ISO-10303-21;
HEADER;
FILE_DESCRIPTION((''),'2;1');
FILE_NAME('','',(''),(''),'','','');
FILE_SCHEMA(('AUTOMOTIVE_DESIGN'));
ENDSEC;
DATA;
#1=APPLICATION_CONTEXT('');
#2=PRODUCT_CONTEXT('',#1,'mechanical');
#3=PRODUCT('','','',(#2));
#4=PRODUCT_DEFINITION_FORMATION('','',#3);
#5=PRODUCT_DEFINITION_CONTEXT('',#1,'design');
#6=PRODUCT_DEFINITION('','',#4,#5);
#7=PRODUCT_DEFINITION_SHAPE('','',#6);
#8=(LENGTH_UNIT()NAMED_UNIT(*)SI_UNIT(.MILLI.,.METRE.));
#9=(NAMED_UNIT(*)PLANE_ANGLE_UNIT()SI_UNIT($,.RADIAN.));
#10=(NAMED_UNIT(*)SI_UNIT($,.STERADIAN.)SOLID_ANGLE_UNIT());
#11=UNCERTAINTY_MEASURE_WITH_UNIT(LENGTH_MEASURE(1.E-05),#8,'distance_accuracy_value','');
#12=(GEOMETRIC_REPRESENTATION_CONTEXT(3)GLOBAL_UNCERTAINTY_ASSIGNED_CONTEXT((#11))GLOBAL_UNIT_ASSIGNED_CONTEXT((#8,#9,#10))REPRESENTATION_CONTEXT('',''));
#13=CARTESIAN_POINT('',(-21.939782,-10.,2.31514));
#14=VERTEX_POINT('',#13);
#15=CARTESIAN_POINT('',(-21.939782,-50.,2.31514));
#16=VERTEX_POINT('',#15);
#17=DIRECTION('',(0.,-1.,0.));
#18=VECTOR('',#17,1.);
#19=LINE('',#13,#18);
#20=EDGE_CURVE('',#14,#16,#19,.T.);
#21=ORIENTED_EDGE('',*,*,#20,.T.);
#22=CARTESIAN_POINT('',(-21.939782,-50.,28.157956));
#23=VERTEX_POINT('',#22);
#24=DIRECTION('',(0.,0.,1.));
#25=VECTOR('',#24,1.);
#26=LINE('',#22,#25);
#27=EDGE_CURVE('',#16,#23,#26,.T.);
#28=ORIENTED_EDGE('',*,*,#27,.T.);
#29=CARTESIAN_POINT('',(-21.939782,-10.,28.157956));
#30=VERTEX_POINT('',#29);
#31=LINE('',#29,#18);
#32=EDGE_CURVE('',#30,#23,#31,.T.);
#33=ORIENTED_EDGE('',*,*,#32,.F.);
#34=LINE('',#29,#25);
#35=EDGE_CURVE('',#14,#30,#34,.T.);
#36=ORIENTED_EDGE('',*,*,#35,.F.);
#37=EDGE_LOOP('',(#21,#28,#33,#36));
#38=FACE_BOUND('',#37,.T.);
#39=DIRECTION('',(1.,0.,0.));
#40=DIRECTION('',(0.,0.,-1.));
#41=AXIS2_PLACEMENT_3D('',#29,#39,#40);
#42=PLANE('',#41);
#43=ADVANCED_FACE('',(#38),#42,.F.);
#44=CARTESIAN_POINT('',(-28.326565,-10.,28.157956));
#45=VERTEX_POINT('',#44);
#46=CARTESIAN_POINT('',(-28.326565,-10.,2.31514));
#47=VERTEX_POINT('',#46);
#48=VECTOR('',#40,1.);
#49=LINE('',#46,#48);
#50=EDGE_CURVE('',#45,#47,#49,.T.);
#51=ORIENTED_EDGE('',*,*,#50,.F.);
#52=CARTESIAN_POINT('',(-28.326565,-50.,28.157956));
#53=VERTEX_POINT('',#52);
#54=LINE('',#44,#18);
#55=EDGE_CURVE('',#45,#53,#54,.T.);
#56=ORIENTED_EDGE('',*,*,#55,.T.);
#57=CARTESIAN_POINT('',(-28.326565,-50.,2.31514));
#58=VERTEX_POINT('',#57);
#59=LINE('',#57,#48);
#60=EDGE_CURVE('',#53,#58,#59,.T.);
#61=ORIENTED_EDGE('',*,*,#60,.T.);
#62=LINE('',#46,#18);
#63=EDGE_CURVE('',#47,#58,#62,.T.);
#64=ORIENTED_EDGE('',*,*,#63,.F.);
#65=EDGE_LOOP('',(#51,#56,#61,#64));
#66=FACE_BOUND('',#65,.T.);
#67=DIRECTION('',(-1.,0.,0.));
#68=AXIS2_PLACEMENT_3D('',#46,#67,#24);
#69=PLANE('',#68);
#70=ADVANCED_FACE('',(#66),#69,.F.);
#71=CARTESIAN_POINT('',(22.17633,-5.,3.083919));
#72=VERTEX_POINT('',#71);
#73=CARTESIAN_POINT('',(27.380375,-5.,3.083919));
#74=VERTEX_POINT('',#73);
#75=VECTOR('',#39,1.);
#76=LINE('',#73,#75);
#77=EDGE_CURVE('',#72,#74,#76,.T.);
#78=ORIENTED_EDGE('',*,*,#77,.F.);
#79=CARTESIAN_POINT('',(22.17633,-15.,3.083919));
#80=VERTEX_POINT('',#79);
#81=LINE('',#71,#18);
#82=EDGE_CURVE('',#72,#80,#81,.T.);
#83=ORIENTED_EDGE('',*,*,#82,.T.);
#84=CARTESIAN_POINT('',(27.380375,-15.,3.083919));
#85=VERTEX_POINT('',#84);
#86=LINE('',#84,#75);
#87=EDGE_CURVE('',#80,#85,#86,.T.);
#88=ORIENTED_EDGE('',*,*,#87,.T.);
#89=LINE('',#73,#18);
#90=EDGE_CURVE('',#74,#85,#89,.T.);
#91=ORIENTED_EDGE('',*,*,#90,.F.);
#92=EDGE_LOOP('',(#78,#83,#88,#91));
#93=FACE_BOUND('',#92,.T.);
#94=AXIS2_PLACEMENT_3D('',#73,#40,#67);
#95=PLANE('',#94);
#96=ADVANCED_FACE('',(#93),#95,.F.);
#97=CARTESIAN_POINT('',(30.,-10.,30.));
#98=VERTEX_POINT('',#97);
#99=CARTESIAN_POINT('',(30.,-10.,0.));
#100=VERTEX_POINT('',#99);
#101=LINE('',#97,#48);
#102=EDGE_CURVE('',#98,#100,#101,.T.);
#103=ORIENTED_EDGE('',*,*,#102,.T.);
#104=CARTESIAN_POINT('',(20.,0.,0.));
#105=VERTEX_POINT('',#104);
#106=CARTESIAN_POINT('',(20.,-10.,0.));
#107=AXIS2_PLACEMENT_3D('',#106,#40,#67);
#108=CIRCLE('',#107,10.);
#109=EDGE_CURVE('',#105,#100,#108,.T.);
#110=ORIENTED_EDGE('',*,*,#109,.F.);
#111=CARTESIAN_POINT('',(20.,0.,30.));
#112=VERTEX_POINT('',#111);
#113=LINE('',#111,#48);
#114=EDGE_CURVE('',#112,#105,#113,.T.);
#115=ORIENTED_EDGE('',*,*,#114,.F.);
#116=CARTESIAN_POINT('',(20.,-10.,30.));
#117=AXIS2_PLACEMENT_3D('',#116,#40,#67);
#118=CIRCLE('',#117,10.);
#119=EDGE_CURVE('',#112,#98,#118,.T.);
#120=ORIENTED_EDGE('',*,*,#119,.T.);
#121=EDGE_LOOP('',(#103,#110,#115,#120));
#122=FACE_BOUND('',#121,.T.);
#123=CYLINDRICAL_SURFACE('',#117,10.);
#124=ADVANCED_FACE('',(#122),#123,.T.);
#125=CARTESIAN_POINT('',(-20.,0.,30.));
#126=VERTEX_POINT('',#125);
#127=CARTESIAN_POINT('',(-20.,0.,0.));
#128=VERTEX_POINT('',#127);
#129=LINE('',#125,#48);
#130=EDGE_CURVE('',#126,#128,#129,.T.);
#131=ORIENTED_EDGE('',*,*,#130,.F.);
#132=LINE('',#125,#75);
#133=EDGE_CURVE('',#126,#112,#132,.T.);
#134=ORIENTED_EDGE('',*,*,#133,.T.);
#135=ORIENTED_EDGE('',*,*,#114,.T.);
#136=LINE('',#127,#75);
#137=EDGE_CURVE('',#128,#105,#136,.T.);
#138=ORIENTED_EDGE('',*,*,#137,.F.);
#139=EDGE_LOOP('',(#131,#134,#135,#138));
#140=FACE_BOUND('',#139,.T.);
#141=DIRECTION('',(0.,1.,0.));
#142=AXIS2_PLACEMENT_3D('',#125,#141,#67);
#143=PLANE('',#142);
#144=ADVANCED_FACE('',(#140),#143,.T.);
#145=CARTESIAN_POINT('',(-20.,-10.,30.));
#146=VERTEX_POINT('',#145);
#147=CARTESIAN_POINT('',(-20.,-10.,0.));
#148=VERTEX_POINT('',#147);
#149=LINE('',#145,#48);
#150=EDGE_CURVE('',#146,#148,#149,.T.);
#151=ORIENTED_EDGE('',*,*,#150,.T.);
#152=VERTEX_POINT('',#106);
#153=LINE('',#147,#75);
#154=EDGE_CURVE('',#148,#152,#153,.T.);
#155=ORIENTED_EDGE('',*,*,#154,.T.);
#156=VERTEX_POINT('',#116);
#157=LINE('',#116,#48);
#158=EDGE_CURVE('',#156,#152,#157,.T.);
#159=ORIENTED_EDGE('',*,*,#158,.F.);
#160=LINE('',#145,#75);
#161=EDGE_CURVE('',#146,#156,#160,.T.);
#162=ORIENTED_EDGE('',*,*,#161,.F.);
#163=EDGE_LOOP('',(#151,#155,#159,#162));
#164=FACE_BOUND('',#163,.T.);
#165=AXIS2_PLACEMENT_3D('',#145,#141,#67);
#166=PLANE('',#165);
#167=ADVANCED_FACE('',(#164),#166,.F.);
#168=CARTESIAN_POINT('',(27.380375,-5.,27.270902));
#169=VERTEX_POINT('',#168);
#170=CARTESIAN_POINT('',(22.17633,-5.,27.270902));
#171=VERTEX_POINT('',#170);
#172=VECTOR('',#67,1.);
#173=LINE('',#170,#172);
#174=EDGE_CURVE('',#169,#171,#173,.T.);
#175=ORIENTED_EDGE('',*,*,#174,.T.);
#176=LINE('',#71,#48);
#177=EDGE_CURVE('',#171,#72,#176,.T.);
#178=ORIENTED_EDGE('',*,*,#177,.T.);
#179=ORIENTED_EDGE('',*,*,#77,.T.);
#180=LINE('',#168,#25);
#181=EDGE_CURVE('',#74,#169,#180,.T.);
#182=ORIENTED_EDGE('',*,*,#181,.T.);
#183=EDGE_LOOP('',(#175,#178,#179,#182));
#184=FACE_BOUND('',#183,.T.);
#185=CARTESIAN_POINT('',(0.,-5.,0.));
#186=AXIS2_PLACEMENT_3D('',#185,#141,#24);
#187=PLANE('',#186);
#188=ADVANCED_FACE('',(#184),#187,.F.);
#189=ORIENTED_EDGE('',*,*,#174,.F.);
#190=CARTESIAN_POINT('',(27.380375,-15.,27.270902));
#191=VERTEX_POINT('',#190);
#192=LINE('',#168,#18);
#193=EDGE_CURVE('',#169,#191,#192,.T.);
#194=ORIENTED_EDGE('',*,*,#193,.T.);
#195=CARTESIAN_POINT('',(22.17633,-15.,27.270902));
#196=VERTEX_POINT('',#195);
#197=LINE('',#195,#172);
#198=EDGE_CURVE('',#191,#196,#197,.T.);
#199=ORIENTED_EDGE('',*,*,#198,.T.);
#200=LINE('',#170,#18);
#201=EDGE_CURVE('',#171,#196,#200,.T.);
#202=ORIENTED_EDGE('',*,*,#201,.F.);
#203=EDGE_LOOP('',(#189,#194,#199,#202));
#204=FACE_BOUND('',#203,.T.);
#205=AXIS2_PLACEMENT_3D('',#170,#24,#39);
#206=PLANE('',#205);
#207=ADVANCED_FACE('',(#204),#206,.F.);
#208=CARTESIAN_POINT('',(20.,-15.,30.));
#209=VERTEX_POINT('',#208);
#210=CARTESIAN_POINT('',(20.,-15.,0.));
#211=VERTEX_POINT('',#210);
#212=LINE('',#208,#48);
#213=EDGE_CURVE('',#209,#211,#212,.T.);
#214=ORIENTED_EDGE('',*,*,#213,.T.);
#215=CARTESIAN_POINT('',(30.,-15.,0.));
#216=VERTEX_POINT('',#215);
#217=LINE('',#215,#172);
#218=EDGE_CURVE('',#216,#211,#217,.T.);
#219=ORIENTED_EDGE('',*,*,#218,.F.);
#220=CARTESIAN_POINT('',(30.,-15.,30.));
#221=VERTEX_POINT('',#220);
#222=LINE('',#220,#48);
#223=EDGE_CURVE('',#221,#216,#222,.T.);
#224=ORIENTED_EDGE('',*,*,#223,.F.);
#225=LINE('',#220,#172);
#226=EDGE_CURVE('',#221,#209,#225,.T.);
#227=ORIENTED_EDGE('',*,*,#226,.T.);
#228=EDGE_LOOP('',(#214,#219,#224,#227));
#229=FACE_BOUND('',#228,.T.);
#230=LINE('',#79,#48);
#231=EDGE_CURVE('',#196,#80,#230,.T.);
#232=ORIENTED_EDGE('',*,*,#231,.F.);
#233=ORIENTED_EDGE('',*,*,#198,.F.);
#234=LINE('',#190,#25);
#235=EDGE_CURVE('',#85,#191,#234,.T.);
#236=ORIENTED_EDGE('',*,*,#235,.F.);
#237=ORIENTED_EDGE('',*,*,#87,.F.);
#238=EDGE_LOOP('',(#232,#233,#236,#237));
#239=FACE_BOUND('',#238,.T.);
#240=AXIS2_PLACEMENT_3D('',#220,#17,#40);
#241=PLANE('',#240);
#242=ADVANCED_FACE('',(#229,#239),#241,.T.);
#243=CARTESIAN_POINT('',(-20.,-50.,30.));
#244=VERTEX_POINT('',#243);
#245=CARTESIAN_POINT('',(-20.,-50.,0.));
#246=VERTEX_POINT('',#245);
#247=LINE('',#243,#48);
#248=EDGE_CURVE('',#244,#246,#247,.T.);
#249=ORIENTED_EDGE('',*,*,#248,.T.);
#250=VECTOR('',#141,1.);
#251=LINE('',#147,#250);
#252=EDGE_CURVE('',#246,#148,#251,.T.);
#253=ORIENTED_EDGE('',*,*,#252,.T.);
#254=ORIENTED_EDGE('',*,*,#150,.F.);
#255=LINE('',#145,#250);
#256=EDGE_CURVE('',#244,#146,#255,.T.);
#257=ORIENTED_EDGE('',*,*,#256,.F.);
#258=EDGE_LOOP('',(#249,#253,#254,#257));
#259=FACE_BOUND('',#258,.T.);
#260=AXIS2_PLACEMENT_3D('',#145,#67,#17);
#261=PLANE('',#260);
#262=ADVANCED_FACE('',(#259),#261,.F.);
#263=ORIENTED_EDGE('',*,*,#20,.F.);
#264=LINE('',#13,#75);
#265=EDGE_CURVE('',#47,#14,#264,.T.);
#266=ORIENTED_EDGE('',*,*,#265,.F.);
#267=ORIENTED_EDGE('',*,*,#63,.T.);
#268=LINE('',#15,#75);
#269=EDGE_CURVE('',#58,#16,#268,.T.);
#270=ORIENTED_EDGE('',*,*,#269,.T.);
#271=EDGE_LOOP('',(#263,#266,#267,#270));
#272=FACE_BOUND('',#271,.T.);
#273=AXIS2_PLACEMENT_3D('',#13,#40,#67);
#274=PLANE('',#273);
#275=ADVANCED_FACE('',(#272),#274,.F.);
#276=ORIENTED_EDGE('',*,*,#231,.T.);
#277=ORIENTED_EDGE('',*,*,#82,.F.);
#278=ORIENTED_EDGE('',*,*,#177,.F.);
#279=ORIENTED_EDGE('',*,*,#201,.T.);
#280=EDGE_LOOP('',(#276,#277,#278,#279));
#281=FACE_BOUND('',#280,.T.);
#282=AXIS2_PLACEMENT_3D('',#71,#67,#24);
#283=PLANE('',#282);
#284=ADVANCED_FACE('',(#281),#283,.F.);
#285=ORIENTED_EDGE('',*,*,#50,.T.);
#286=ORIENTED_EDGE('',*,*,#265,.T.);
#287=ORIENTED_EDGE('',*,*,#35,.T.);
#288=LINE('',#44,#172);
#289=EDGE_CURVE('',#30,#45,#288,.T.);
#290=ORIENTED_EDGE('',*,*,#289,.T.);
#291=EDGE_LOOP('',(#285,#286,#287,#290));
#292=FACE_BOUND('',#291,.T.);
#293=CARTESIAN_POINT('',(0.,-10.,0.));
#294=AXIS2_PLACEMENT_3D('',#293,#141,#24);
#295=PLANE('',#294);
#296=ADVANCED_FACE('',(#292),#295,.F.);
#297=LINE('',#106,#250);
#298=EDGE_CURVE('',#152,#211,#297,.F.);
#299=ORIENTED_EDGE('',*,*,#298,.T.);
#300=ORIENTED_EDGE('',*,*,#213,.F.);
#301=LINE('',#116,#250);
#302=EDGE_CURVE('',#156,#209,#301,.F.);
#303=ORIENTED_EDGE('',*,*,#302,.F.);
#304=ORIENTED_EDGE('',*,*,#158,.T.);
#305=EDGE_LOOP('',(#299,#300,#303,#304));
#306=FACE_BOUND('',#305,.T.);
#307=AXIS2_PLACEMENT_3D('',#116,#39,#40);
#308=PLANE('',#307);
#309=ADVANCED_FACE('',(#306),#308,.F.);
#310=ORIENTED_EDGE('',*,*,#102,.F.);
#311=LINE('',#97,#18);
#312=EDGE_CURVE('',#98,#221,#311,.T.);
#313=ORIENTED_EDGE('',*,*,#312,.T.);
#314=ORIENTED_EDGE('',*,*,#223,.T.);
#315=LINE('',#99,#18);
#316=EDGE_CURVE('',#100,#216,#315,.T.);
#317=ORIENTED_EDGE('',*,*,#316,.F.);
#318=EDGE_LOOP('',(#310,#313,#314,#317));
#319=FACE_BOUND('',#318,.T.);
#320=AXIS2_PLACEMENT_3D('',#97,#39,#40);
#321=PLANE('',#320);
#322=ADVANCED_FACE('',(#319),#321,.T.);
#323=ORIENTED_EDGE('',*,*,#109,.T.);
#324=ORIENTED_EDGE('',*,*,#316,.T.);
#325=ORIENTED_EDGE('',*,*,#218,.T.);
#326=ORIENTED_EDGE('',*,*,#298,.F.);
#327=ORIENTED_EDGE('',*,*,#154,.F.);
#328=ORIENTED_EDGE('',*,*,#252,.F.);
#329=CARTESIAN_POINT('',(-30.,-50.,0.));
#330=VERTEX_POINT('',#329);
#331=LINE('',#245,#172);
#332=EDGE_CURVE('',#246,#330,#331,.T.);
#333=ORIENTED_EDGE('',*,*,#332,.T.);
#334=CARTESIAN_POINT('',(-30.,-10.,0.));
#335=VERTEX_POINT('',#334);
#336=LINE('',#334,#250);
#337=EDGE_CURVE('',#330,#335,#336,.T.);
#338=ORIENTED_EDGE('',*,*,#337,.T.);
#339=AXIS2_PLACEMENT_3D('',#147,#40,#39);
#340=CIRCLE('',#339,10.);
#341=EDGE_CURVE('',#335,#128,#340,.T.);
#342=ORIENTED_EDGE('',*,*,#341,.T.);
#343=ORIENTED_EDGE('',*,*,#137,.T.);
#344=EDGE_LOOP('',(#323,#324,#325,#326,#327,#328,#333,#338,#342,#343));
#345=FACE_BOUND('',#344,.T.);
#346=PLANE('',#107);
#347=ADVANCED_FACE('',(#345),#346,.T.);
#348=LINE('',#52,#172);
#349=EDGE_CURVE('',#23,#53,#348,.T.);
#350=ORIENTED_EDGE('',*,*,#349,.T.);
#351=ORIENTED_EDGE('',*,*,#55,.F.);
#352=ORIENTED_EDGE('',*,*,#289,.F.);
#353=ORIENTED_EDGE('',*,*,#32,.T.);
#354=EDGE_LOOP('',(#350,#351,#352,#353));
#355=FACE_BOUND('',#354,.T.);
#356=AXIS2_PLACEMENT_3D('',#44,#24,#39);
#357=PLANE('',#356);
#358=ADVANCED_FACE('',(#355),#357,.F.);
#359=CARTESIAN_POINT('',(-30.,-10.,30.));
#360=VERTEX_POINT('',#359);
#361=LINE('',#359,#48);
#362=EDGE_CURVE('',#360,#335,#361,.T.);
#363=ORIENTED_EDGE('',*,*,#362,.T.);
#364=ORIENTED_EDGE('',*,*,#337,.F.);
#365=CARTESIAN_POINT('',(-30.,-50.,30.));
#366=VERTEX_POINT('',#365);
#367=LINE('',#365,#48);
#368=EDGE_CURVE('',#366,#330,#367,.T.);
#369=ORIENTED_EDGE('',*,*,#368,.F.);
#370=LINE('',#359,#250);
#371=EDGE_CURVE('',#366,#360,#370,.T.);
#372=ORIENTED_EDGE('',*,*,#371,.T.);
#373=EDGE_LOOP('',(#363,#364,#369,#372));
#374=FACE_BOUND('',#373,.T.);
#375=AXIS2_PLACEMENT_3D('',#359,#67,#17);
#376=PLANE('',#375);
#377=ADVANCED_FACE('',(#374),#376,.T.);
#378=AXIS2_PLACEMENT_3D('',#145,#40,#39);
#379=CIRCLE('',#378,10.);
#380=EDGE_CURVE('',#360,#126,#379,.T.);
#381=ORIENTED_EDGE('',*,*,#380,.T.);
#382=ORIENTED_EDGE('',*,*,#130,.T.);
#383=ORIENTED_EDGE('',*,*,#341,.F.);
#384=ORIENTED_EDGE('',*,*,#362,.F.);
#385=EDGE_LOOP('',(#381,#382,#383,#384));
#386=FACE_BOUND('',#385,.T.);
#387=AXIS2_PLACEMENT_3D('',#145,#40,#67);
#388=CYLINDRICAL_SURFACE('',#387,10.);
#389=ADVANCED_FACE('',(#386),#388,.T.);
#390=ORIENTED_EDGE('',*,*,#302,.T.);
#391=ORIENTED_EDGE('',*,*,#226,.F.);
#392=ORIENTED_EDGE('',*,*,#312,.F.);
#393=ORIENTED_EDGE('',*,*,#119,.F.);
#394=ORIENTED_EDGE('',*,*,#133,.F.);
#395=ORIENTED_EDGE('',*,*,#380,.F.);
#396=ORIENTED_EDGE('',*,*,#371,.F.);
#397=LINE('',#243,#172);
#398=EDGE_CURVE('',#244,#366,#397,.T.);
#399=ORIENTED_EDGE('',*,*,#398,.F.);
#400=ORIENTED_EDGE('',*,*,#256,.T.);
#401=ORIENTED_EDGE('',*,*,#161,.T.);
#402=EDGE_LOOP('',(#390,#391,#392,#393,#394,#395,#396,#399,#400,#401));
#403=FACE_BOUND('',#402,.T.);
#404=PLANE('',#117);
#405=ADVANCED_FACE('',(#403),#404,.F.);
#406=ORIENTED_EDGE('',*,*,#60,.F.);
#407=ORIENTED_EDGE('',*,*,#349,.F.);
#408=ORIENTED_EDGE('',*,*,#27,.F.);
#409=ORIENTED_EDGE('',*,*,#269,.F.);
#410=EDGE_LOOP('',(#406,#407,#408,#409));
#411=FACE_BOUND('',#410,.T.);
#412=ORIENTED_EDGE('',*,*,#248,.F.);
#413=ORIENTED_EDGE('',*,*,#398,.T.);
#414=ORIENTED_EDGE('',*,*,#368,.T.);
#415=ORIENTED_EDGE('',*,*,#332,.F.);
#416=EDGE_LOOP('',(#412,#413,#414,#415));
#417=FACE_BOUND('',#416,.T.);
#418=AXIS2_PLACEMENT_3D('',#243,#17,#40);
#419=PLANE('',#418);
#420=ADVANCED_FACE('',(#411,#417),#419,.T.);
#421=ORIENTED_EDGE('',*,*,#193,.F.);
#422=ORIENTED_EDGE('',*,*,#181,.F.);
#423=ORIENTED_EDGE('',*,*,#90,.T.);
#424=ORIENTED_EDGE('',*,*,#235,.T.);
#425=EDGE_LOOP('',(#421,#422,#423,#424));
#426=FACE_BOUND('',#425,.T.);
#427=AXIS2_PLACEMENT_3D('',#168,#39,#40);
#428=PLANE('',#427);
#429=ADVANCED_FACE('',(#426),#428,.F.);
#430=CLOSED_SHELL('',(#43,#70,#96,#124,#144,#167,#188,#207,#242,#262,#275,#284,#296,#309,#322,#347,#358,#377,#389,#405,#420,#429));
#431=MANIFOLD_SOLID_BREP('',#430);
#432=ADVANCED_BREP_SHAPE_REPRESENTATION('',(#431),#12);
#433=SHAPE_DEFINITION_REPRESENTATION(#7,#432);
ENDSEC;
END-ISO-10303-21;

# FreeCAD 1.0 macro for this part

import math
import FreeCAD as App
import Part
import Sketcher
from FreeCAD import Vector

doc = App.newDocument("Part")
params = doc.addObject("Spreadsheet::Sheet", "Params")
for row, (alias, value) in enumerate([
    ("sketch1_radius", "10 mm"),
    ("sketch1_width", "40 mm"),
    ("sketch1_height", "5 mm"),
    ("pad1_length", "30 mm"),
    ("pocket1_length", "40 mm"),
    ("pocket2_length", "10 mm"),
], start=1):
    params.set(f"A{row}", alias)
    params.set(f"B{row}", "=" + value)
    params.setAlias(f"B{row}", alias)

body = doc.addObject("PartDesign::Body", "Body")

sketch1 = body.newObject("Sketcher::SketchObject", "Sketch")
sketch1.AttachmentSupport = (doc.getObject("XY_Plane"), [""])
sketch1.MapMode = "FlatFace"
sketch1.addGeometry([
    Part.LineSegment(Vector(-30, -10, 0), Vector(-30, -50, 0)),
    Part.LineSegment(Vector(-30, -50, 0), Vector(-20, -50, 0)),
    Part.LineSegment(Vector(-20, -50, 0), Vector(-20, -10, 0)),
    Part.LineSegment(Vector(-20, -10, 0), Vector(20, -10, 0)),
    Part.LineSegment(Vector(20, -10, 0), Vector(20, -15, 0)),
    Part.LineSegment(Vector(20, -15, 0), Vector(30, -15, 0)),
    Part.LineSegment(Vector(30, -15, 0), Vector(30, -10, 0)),
    Part.ArcOfCircle(Part.Circle(Vector(20, -10, 0), Vector(0, 0, 1), 10), math.radians(0), math.radians(90)),
    Part.LineSegment(Vector(20, 0, 0), Vector(-20, 0, 0)),
    Part.ArcOfCircle(Part.Circle(Vector(-20, -10, 0), Vector(0, 0, 1), 10), math.radians(90), math.radians(180)),
], False)
sketch1.addConstraint([
    Sketcher.Constraint("Coincident", 0, 2, 1, 1),
    Sketcher.Constraint("Coincident", 1, 2, 2, 1),
    Sketcher.Constraint("Coincident", 2, 2, 3, 1),
    Sketcher.Constraint("Coincident", 3, 2, 4, 1),
    Sketcher.Constraint("Coincident", 4, 2, 5, 1),
    Sketcher.Constraint("Coincident", 5, 2, 6, 1),
    Sketcher.Constraint("Tangent", 6, 2, 7, 1),
    Sketcher.Constraint("Tangent", 7, 2, 8, 1),
    Sketcher.Constraint("Tangent", 8, 2, 9, 1),
    Sketcher.Constraint("Tangent", 9, 2, 0, 1),
    Sketcher.Constraint("Vertical", 0),
    Sketcher.Constraint("Horizontal", 1),
    Sketcher.Constraint("Vertical", 2),
    Sketcher.Constraint("Horizontal", 3),
    Sketcher.Constraint("Vertical", 4),
    Sketcher.Constraint("Horizontal", 5),
    Sketcher.Constraint("Vertical", 6),
    Sketcher.Constraint("Horizontal", 8),
    Sketcher.Constraint("Coincident", 2, 2, 9, 3),
    Sketcher.Constraint("Coincident", 3, 2, 7, 3),
    Sketcher.Constraint("Symmetric", 7, 2, 8, 2, -1, 1),
    Sketcher.Constraint("Equal", 8, 0),
    Sketcher.Constraint("Radius", 7, 10.0),
    Sketcher.Constraint("DistanceX", 3, 1, 3, 2, 40.0),
    Sketcher.Constraint("DistanceY", 4, 2, 4, 1, 5.0),
])
sketch1.setExpression("Constraints[22]", "Params.sketch1_radius")
sketch1.setExpression("Constraints[23]", "Params.sketch1_width")
sketch1.setExpression("Constraints[24]", "Params.sketch1_height")
pad1 = body.newObject("PartDesign::Pad", "Pad")
pad1.Profile = sketch1
pad1.setExpression("Length", "Params.pad1_length")

sketch2 = body.newObject("Sketcher::SketchObject", "Sketch001")
sketch2.AttachmentSupport = (doc.getObject("XZ_Plane"), [""])
sketch2.MapMode = "FlatFace"
sketch2.AttachmentOffset = App.Placement(Vector(0, 0, 50), App.Rotation())
sketch2.addGeometry([
    Part.LineSegment(Vector(-28, 28, 0), Vector(-28, 2, 0)),
    Part.LineSegment(Vector(-28, 2, 0), Vector(-22, 2, 0)),
    Part.LineSegment(Vector(-22, 2, 0), Vector(-22, 28, 0)),
    Part.LineSegment(Vector(-22, 28, 0), Vector(-28, 28, 0)),
], False)
sketch2.addConstraint([
    Sketcher.Constraint("Coincident", 0, 2, 1, 1),
    Sketcher.Constraint("Coincident", 1, 2, 2, 1),
    Sketcher.Constraint("Coincident", 2, 2, 3, 1),
    Sketcher.Constraint("Coincident", 3, 2, 0, 1),
    Sketcher.Constraint("Vertical", 0),
    Sketcher.Constraint("Horizontal", 1),
    Sketcher.Constraint("Vertical", 2),
    Sketcher.Constraint("Horizontal", 3),
    Sketcher.Constraint("DistanceX", 1, 1, 1, 2, 6.386783),
    Sketcher.Constraint("DistanceY", 0, 2, 0, 1, 25.842816),
    Sketcher.Constraint("DistanceY", -1, 1, 0, 2, 2.31514),
    Sketcher.Constraint("DistanceX", 0, 2, -1, 1, 28.326565),
])
pocket1 = body.newObject("PartDesign::Pocket", "Pocket")
pocket1.Profile = sketch2
pocket1.setExpression("Length", "Params.pocket1_length")

sketch3 = body.newObject("Sketcher::SketchObject", "Sketch002")
sketch3.AttachmentSupport = (doc.getObject("XZ_Plane"), [""])
sketch3.MapMode = "FlatFace"
sketch3.AttachmentOffset = App.Placement(Vector(0, 0, 15), App.Rotation())
sketch3.addGeometry([
    Part.LineSegment(Vector(22, 27, 0), Vector(22, 3, 0)),
    Part.LineSegment(Vector(22, 3, 0), Vector(27, 3, 0)),
    Part.LineSegment(Vector(27, 3, 0), Vector(27, 27, 0)),
    Part.LineSegment(Vector(27, 27, 0), Vector(22, 27, 0)),
], False)
sketch3.addConstraint([
    Sketcher.Constraint("Coincident", 0, 2, 1, 1),
    Sketcher.Constraint("Coincident", 1, 2, 2, 1),
    Sketcher.Constraint("Coincident", 2, 2, 3, 1),
    Sketcher.Constraint("Coincident", 3, 2, 0, 1),
    Sketcher.Constraint("Vertical", 0),
    Sketcher.Constraint("Horizontal", 1),
    Sketcher.Constraint("Vertical", 2),
    Sketcher.Constraint("Horizontal", 3),
    Sketcher.Constraint("DistanceX", 1, 1, 1, 2, 5.204045),
    Sketcher.Constraint("DistanceY", 0, 2, 0, 1, 24.186983),
    Sketcher.Constraint("DistanceX", -1, 1, 0, 2, 22.17633),
    Sketcher.Constraint("DistanceY", -1, 1, 0, 2, 3.083919),
])
pocket2 = body.newObject("PartDesign::Pocket", "Pocket001")
pocket2.Profile = sketch3
pocket2.setExpression("Length", "Params.pocket2_length")

doc.recompute()
